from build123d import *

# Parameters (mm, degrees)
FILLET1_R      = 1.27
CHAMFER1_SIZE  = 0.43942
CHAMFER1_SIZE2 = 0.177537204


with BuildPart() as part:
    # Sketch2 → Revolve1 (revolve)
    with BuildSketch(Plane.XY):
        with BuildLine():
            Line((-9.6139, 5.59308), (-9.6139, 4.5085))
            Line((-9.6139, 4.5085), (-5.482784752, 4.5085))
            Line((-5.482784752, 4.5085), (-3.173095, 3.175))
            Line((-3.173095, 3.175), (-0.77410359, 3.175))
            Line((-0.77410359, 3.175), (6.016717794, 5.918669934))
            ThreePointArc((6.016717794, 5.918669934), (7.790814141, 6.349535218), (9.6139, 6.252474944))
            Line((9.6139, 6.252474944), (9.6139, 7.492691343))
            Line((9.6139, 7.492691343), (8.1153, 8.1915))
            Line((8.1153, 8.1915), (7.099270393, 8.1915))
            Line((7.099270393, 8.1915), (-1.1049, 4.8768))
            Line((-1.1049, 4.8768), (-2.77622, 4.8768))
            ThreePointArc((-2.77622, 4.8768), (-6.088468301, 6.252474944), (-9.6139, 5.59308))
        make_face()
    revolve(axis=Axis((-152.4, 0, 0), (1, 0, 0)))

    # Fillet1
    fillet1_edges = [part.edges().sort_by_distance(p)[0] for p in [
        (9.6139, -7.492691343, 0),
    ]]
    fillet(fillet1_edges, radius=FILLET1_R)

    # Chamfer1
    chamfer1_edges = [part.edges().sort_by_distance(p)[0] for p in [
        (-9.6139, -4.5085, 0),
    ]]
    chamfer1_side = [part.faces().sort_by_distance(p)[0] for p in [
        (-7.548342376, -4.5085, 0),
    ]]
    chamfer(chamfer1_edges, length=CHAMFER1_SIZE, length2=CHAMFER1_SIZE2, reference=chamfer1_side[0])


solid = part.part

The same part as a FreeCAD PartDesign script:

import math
import FreeCAD as App
import Part
import Sketcher

V = App.Vector
Q = App.Units.Quantity


def edges_at(feature, points):
    """Names of the edges that pass closest to the given points."""
    edges = feature.Shape.Edges
    near = lambda p: min(range(len(edges)), key=lambda i: edges[i].distToShape(Part.Vertex(*p))[0])
    return sorted({f"Edge{near(p) + 1}" for p in points})

doc = App.newDocument("Part")
body = doc.addObject("PartDesign::Body", "Body")

# Sketch on XY plane
sketch1 = body.newObject("Sketcher::SketchObject", "Sketch")
sketch1.AttachmentSupport = (doc.getObject("XY_Plane"), [""])
sketch1.MapMode = "FlatFace"
sketch1.addGeometry([
    Part.LineSegment(V(-9.6139, 5.59308, 0), V(-9.6139, 4.5085, 0)),  # 0
    Part.LineSegment(V(-9.6139, 4.5085, 0), V(-5.482785, 4.5085, 0)),  # 1
    Part.LineSegment(V(-5.482785, 4.5085, 0), V(-3.173095, 3.175, 0)),  # 2
    Part.LineSegment(V(-3.173095, 3.175, 0), V(-0.774104, 3.175, 0)),  # 3
    Part.LineSegment(V(-0.774104, 3.175, 0), V(6.016718, 5.91867, 0)),  # 4
    Part.ArcOfCircle(Part.Circle(V(8.371682, 0.089929, 0), V(0, 0, 1), 6.2865), math.radians(78.603301), math.radians(112)),  # 5
    Part.LineSegment(V(9.6139, 6.252475, 0), V(9.6139, 7.492691, 0)),  # 6
    Part.LineSegment(V(9.6139, 7.492691, 0), V(8.1153, 8.1915, 0)),  # 7
    Part.LineSegment(V(8.1153, 8.1915, 0), V(7.09927, 8.1915, 0)),  # 8
    Part.LineSegment(V(7.09927, 8.1915, 0), V(-1.1049, 4.8768, 0)),  # 9
    Part.LineSegment(V(-1.1049, 4.8768, 0), V(-2.77622, 4.8768, 0)),  # 10
    Part.ArcOfCircle(Part.Circle(V(-6.743426, 0.000186, 0), V(0, 0, 1), 6.2865), math.radians(50.871077), math.radians(117.168526)),  # 11
], False)
sketch1.addConstraint([
    Sketcher.Constraint("Coincident", 0, 2, 1, 1),
    Sketcher.Constraint("Coincident", 1, 2, 2, 1),
    Sketcher.Constraint("Coincident", 2, 2, 3, 1),
    Sketcher.Constraint("Coincident", 3, 2, 4, 1),
    Sketcher.Constraint("Tangent", 4, 2, 5, 2),
    Sketcher.Constraint("Coincident", 5, 1, 6, 1),
    Sketcher.Constraint("Coincident", 6, 2, 7, 1),
    Sketcher.Constraint("Coincident", 7, 2, 8, 1),
    Sketcher.Constraint("Coincident", 8, 2, 9, 1),
    Sketcher.Constraint("Coincident", 9, 2, 10, 1),
    Sketcher.Constraint("Coincident", 10, 2, 11, 1),
    Sketcher.Constraint("Coincident", 11, 2, 0, 1),
    Sketcher.Constraint("Vertical", 0),
    Sketcher.Constraint("Horizontal", 1),
    Sketcher.Constraint("Horizontal", 3),
    Sketcher.Constraint("Vertical", 6),
    Sketcher.Constraint("Horizontal", 8),
    Sketcher.Constraint("Horizontal", 10),
    Sketcher.Constraint("Equal", 5, 11),
    Sketcher.Constraint("Parallel", 4, 9),
    Sketcher.Constraint("Angle", 2, Q("-30 deg")),
    Sketcher.Constraint("Angle", 4, Q("22 deg")),
    Sketcher.Constraint("Angle", 7, Q("155 deg")),
    Sketcher.Constraint("Radius", 5, Q("0.2475 in")),
    Sketcher.Constraint("Distance", 2, Q("0.105 in")),
    Sketcher.Constraint("DistanceX", 10, 2, 10, 1, Q("0.0658 in")),
    Sketcher.Constraint("DistanceY", 0, 2, 0, 1, Q("0.0427 in")),
    Sketcher.Constraint("DistanceY", -1, 1, 2, 2, Q("0.125 in")),
    Sketcher.Constraint("DistanceY", -1, 1, 9, 2, Q("0.192 in")),
    Sketcher.Constraint("DistanceX", 7, 2, 6, 2, Q("0.059 in")),
    Sketcher.Constraint("DistanceX", 2, 2, 10, 2, Q("0.015625 in")),
    Sketcher.Constraint("DistanceX", 0, 2, -1, 1, Q("0.3785 in")),
    Sketcher.Constraint("DistanceX", -1, 1, 5, 1, Q("0.3785 in")),
    Sketcher.Constraint("DistanceY", -1, 1, 7, 2, Q("0.3225 in")),
    Sketcher.Constraint("DistanceX", 9, 2, -1, 1, Q("0.0435 in")),
    Sketcher.Constraint("DistanceX", 3, 1, 3, 2, Q("2.398991 mm")),
    Sketcher.Constraint("DistanceY", 6, 1, 6, 2, Q("1.240216 mm")),
])
revolution = body.newObject("PartDesign::Revolution", "Revolution")
revolution.Profile = sketch1
revolution.ReferenceAxis = (sketch1, ["H_Axis"])
revolution.Angle = 360
doc.recompute()

fillet = body.newObject("PartDesign::Fillet", "Fillet")
fillet.Base = (revolution, edges_at(revolution, [(9.614, -7.493, 0)]))
fillet.Radius = Q("0.05 in")
doc.recompute()

chamfer = body.newObject("PartDesign::Chamfer", "Chamfer")
chamfer.Base = (fillet, edges_at(fillet, [(-9.614, -4.508, 0)]))
chamfer.ChamferType = "Two distances"
chamfer.Size = Q("0.0173 in")
chamfer.Size2 = 0.177537

doc.recompute()
